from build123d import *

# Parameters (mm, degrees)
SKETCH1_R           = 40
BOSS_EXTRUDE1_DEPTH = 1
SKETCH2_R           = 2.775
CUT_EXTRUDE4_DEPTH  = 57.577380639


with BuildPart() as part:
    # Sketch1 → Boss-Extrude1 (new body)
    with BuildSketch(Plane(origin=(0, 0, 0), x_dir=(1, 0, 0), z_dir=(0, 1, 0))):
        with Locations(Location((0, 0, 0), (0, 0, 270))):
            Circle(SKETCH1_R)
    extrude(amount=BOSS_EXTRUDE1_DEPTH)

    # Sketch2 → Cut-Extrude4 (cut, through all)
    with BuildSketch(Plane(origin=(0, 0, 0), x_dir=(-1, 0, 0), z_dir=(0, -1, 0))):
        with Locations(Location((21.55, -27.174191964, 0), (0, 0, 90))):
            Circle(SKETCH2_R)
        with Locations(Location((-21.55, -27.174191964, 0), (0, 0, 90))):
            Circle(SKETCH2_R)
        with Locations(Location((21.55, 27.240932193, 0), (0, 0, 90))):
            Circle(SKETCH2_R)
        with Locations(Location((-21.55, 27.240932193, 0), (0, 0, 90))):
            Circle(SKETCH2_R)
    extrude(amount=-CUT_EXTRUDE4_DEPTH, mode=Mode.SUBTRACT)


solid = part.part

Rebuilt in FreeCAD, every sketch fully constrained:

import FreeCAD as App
import Part
import Sketcher

V = App.Vector

doc = App.newDocument("Part")
body = doc.addObject("PartDesign::Body", "Body")

# Sketch on XZ plane
sketch1 = body.newObject("Sketcher::SketchObject", "Sketch")
sketch1.AttachmentSupport = (doc.getObject("XZ_Plane"), [""])
sketch1.MapMode = "FlatFace"
sketch1.addGeometry(Part.Circle(V(0, 0, 0), V(0, 0, 1), 40), False)
sketch1.addConstraint([
    Sketcher.Constraint("Coincident", 0, 3, -1, 1),
    Sketcher.Constraint("Diameter", 0, 80.0),
])
pad1 = body.newObject("PartDesign::Pad", "Pad")
pad1.Profile = sketch1
pad1.Length = 1
pad1.Reversed = True

# Sketch on XZ plane
sketch2 = body.newObject("Sketcher::SketchObject", "Sketch001")
sketch2.AttachmentSupport = (doc.getObject("XZ_Plane"), [""])
sketch2.MapMode = "FlatFace"
sketch2.addGeometry([
    Part.Circle(V(-21.6, 27.2, 0), V(0, 0, 1), 2.8),
    Part.Circle(V(21.6, 27.2, 0), V(0, 0, 1), 2.8),
    Part.Circle(V(-21.6, -27.2, 0), V(0, 0, 1), 2.8),
    Part.Circle(V(21.6, -27.2, 0), V(0, 0, 1), 2.8),
], False)
sketch2.addConstraint([
    Sketcher.Constraint("Equal", 0, 1),
    Sketcher.Constraint("Equal", 1, 2),
    Sketcher.Constraint("Equal", 2, 3),
    Sketcher.Constraint("Symmetric", 0, 3, 1, 3, -2),
    Sketcher.Constraint("Symmetric", 2, 3, 3, 3, -2),
    Sketcher.Constraint("Vertical", 0, 3, 2, 3),
    Sketcher.Constraint("Diameter", 0, 5.55),
    Sketcher.Constraint("DistanceX", 0, 3, 1, 3, 43.1),
    Sketcher.Constraint("DistanceY", -1, 1, 0, 3, 27.174192),
    Sketcher.Constraint("DistanceY", 2, 3, -1, 1, 27.240932),
])
pocket1 = body.newObject("PartDesign::Pocket", "Pocket")
pocket1.Profile = sketch2
pocket1.Type = "ThroughAll"

doc.recompute()
